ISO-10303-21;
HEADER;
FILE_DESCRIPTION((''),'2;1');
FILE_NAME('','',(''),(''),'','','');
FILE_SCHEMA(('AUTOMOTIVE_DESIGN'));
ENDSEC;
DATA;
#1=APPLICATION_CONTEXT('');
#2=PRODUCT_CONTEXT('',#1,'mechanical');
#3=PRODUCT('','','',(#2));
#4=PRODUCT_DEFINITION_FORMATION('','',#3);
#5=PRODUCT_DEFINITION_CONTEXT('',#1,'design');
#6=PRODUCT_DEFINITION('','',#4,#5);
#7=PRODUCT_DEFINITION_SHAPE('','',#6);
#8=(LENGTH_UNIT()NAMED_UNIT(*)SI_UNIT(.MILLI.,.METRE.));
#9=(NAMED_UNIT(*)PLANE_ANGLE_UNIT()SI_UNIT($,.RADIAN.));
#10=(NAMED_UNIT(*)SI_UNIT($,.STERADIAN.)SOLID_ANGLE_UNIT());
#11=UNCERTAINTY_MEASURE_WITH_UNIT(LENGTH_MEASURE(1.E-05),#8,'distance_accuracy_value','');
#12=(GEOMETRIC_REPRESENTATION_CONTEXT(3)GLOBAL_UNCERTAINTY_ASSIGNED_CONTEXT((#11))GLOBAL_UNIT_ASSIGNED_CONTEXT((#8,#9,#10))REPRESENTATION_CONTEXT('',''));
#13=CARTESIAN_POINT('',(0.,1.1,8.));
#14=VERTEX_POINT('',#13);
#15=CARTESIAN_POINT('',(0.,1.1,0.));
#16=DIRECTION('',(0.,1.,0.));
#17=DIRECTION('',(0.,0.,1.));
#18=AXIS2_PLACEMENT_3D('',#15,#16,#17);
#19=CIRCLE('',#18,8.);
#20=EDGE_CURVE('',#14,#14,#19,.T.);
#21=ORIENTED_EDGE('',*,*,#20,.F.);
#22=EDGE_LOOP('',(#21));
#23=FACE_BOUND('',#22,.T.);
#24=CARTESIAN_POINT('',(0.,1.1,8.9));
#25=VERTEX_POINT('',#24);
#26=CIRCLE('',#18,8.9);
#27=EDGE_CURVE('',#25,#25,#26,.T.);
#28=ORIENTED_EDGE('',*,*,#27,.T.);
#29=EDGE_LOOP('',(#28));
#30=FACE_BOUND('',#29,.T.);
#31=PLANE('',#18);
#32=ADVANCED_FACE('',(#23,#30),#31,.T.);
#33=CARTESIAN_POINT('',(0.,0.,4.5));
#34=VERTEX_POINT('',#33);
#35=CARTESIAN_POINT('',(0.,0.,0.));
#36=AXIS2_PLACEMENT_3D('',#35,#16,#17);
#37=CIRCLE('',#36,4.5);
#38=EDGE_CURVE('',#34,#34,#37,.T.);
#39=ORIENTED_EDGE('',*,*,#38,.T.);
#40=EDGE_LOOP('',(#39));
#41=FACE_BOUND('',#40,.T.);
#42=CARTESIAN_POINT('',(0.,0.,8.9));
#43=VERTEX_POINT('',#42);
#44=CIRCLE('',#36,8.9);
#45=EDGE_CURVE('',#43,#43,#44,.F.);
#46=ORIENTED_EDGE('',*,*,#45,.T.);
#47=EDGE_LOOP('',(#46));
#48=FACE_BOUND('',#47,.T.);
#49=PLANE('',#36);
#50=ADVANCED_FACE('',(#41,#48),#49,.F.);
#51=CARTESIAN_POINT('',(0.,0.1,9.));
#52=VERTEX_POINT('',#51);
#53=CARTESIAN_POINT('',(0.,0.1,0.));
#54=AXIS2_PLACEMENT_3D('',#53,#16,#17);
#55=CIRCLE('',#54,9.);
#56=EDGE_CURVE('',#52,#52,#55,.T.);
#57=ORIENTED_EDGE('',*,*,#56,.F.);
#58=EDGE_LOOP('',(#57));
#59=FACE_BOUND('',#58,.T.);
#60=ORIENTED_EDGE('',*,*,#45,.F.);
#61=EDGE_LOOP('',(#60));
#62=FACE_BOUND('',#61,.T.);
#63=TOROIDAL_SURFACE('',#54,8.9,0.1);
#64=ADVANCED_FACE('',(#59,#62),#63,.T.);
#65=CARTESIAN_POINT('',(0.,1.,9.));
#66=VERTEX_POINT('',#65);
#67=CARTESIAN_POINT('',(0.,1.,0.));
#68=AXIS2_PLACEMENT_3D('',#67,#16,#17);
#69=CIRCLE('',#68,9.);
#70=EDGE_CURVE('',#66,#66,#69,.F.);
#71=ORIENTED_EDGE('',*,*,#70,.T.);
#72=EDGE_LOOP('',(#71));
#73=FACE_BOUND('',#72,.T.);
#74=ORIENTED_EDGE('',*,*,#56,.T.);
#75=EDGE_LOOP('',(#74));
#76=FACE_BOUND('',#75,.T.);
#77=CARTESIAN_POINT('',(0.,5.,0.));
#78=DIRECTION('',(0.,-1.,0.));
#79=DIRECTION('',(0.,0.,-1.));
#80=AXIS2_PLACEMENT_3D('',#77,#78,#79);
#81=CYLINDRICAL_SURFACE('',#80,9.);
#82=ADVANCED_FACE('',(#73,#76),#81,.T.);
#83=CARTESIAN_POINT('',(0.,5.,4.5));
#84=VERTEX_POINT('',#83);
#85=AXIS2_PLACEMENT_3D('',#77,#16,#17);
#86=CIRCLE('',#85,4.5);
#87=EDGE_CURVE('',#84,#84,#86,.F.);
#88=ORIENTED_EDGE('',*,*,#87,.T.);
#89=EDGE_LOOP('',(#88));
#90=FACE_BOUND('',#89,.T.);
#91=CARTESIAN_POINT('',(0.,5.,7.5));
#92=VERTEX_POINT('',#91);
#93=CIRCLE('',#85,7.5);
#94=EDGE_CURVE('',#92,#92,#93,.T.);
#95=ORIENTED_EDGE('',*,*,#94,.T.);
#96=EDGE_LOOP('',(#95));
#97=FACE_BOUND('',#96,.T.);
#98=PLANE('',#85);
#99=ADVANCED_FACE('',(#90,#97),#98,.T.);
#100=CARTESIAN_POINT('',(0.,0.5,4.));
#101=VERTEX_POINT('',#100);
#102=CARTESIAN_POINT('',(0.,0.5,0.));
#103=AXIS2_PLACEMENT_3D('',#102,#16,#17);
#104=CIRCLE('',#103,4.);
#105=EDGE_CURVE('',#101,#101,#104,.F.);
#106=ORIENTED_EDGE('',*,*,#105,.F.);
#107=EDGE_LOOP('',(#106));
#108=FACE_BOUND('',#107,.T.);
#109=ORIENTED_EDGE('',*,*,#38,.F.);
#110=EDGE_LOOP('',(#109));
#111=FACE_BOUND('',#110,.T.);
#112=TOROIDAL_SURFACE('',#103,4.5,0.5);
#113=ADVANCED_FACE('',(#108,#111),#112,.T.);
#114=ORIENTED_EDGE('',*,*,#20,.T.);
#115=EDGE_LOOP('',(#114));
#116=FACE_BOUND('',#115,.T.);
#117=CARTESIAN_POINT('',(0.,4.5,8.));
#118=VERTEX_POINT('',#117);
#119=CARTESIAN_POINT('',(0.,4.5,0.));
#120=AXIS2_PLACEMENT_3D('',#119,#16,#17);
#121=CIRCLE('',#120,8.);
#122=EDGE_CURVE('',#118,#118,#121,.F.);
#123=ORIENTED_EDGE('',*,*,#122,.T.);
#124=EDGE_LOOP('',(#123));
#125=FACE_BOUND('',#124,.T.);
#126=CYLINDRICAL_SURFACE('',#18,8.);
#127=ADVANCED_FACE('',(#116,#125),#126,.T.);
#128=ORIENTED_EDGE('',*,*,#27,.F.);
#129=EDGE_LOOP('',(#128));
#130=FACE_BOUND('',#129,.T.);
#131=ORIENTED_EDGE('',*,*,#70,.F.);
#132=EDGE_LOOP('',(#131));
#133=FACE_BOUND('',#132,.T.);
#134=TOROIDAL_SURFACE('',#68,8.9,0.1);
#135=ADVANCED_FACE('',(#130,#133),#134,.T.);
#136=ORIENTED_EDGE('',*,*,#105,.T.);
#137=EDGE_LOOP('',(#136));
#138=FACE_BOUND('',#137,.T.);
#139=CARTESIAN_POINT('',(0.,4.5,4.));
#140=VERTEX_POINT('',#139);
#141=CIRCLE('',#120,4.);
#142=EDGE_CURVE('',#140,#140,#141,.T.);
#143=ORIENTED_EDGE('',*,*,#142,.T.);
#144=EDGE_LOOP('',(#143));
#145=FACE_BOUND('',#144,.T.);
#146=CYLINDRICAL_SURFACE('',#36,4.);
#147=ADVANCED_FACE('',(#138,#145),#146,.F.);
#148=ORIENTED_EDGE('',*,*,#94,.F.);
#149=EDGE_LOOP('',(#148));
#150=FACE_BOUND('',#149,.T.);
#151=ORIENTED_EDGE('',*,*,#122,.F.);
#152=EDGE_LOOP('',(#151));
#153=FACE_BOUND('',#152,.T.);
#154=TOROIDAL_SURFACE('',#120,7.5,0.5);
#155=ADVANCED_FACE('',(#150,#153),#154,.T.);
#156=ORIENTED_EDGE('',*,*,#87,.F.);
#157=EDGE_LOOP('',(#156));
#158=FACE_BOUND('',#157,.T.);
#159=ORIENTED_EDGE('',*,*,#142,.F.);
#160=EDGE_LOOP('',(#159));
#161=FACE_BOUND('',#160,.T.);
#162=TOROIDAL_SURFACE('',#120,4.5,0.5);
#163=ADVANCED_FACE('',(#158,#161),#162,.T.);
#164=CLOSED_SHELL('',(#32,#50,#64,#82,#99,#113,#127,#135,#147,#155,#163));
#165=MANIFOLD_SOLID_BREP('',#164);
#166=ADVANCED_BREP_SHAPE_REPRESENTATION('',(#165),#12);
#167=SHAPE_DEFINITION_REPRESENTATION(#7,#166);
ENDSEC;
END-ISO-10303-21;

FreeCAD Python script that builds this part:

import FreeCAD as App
import Part
import Sketcher
from FreeCAD import Vector


def edges_at(feature, points):
    """Names of the edges that pass closest to the given points."""
    edges = feature.Shape.Edges
    near = lambda p: min(range(len(edges)), key=lambda i: edges[i].distToShape(Part.Vertex(*p))[0])
    return sorted({f"Edge{near(p) + 1}" for p in points})

doc = App.newDocument("Part")
body = doc.addObject("PartDesign::Body", "Body")

sketch1 = body.newObject("Sketcher::SketchObject", "Sketch")
sketch1.AttachmentSupport = (doc.getObject("XZ_Plane"), [""])
sketch1.MapMode = "FlatFace"
sketch1.addGeometry(Part.Circle(Vector(0, 0, 0), Vector(0, 0, 1), 9), False)
sketch1.addConstraint([
    Sketcher.Constraint("Coincident", 0, 3, -1, 1),
    Sketcher.Constraint("Diameter", 0, 18.0),
])
pad1 = body.newObject("PartDesign::Pad", "Pad")
pad1.Profile = sketch1
pad1.Length = 5
pad1.Reversed = True

sketch2 = body.newObject("Sketcher::SketchObject", "Sketch001")
sketch2.AttachmentSupport = (doc.getObject("XZ_Plane"), [""])
sketch2.MapMode = "FlatFace"
sketch2.AttachmentOffset = App.Placement(Vector(0, 0, -1.1), App.Rotation())
sketch2.addGeometry([
    Part.Circle(Vector(0, 0, 0), Vector(0, 0, 1), 9),
    Part.Circle(Vector(0, 0, 0), Vector(0, 0, 1), 8),
], False)
sketch2.addConstraint([
    Sketcher.Constraint("Coincident", 0, 3, -1, 1),
    Sketcher.Constraint("Coincident", 1, 3, -1, 1),
    Sketcher.Constraint("Diameter", 0, 18.0),
    Sketcher.Constraint("Diameter", 1, 16.0),
])
pocket1 = body.newObject("PartDesign::Pocket", "Pocket")
pocket1.Profile = sketch2
pocket1.Length = 3.9

sketch3 = body.newObject("Sketcher::SketchObject", "Sketch002")
sketch3.AttachmentSupport = (doc.getObject("XZ_Plane"), [""])
sketch3.MapMode = "FlatFace"
sketch3.AttachmentOffset = App.Placement(Vector(0, 0, -5), App.Rotation())
sketch3.addGeometry(Part.Circle(Vector(0, 0, 0), Vector(0, 0, 1), 4), False)
sketch3.addConstraint([
    Sketcher.Constraint("Coincident", 0, 3, -1, 1),
    Sketcher.Constraint("Diameter", 0, 8.0),
])
pocket2 = body.newObject("PartDesign::Pocket", "Pocket001")
pocket2.Profile = sketch3
pocket2.Length = 5
pocket2.Reversed = True
doc.recompute()

fillet = body.newObject("PartDesign::Fillet", "Fillet")
fillet.Base = (pocket2, edges_at(pocket2, [(0, 0, -4), (0, 5, -4), (0, 5, -8)]))
fillet.Radius = 0.5
doc.recompute()

fillet2 = body.newObject("PartDesign::Fillet", "Fillet001")
fillet2.Base = (fillet, edges_at(fillet, [(0, 1.1, -9)]))
fillet2.Radius = 0.1
doc.recompute()

fillet3 = body.newObject("PartDesign::Fillet", "Fillet002")
fillet3.Base = (fillet2, edges_at(fillet2, [(0, 0, -9)]))
fillet3.Radius = 0.1

doc.recompute()
